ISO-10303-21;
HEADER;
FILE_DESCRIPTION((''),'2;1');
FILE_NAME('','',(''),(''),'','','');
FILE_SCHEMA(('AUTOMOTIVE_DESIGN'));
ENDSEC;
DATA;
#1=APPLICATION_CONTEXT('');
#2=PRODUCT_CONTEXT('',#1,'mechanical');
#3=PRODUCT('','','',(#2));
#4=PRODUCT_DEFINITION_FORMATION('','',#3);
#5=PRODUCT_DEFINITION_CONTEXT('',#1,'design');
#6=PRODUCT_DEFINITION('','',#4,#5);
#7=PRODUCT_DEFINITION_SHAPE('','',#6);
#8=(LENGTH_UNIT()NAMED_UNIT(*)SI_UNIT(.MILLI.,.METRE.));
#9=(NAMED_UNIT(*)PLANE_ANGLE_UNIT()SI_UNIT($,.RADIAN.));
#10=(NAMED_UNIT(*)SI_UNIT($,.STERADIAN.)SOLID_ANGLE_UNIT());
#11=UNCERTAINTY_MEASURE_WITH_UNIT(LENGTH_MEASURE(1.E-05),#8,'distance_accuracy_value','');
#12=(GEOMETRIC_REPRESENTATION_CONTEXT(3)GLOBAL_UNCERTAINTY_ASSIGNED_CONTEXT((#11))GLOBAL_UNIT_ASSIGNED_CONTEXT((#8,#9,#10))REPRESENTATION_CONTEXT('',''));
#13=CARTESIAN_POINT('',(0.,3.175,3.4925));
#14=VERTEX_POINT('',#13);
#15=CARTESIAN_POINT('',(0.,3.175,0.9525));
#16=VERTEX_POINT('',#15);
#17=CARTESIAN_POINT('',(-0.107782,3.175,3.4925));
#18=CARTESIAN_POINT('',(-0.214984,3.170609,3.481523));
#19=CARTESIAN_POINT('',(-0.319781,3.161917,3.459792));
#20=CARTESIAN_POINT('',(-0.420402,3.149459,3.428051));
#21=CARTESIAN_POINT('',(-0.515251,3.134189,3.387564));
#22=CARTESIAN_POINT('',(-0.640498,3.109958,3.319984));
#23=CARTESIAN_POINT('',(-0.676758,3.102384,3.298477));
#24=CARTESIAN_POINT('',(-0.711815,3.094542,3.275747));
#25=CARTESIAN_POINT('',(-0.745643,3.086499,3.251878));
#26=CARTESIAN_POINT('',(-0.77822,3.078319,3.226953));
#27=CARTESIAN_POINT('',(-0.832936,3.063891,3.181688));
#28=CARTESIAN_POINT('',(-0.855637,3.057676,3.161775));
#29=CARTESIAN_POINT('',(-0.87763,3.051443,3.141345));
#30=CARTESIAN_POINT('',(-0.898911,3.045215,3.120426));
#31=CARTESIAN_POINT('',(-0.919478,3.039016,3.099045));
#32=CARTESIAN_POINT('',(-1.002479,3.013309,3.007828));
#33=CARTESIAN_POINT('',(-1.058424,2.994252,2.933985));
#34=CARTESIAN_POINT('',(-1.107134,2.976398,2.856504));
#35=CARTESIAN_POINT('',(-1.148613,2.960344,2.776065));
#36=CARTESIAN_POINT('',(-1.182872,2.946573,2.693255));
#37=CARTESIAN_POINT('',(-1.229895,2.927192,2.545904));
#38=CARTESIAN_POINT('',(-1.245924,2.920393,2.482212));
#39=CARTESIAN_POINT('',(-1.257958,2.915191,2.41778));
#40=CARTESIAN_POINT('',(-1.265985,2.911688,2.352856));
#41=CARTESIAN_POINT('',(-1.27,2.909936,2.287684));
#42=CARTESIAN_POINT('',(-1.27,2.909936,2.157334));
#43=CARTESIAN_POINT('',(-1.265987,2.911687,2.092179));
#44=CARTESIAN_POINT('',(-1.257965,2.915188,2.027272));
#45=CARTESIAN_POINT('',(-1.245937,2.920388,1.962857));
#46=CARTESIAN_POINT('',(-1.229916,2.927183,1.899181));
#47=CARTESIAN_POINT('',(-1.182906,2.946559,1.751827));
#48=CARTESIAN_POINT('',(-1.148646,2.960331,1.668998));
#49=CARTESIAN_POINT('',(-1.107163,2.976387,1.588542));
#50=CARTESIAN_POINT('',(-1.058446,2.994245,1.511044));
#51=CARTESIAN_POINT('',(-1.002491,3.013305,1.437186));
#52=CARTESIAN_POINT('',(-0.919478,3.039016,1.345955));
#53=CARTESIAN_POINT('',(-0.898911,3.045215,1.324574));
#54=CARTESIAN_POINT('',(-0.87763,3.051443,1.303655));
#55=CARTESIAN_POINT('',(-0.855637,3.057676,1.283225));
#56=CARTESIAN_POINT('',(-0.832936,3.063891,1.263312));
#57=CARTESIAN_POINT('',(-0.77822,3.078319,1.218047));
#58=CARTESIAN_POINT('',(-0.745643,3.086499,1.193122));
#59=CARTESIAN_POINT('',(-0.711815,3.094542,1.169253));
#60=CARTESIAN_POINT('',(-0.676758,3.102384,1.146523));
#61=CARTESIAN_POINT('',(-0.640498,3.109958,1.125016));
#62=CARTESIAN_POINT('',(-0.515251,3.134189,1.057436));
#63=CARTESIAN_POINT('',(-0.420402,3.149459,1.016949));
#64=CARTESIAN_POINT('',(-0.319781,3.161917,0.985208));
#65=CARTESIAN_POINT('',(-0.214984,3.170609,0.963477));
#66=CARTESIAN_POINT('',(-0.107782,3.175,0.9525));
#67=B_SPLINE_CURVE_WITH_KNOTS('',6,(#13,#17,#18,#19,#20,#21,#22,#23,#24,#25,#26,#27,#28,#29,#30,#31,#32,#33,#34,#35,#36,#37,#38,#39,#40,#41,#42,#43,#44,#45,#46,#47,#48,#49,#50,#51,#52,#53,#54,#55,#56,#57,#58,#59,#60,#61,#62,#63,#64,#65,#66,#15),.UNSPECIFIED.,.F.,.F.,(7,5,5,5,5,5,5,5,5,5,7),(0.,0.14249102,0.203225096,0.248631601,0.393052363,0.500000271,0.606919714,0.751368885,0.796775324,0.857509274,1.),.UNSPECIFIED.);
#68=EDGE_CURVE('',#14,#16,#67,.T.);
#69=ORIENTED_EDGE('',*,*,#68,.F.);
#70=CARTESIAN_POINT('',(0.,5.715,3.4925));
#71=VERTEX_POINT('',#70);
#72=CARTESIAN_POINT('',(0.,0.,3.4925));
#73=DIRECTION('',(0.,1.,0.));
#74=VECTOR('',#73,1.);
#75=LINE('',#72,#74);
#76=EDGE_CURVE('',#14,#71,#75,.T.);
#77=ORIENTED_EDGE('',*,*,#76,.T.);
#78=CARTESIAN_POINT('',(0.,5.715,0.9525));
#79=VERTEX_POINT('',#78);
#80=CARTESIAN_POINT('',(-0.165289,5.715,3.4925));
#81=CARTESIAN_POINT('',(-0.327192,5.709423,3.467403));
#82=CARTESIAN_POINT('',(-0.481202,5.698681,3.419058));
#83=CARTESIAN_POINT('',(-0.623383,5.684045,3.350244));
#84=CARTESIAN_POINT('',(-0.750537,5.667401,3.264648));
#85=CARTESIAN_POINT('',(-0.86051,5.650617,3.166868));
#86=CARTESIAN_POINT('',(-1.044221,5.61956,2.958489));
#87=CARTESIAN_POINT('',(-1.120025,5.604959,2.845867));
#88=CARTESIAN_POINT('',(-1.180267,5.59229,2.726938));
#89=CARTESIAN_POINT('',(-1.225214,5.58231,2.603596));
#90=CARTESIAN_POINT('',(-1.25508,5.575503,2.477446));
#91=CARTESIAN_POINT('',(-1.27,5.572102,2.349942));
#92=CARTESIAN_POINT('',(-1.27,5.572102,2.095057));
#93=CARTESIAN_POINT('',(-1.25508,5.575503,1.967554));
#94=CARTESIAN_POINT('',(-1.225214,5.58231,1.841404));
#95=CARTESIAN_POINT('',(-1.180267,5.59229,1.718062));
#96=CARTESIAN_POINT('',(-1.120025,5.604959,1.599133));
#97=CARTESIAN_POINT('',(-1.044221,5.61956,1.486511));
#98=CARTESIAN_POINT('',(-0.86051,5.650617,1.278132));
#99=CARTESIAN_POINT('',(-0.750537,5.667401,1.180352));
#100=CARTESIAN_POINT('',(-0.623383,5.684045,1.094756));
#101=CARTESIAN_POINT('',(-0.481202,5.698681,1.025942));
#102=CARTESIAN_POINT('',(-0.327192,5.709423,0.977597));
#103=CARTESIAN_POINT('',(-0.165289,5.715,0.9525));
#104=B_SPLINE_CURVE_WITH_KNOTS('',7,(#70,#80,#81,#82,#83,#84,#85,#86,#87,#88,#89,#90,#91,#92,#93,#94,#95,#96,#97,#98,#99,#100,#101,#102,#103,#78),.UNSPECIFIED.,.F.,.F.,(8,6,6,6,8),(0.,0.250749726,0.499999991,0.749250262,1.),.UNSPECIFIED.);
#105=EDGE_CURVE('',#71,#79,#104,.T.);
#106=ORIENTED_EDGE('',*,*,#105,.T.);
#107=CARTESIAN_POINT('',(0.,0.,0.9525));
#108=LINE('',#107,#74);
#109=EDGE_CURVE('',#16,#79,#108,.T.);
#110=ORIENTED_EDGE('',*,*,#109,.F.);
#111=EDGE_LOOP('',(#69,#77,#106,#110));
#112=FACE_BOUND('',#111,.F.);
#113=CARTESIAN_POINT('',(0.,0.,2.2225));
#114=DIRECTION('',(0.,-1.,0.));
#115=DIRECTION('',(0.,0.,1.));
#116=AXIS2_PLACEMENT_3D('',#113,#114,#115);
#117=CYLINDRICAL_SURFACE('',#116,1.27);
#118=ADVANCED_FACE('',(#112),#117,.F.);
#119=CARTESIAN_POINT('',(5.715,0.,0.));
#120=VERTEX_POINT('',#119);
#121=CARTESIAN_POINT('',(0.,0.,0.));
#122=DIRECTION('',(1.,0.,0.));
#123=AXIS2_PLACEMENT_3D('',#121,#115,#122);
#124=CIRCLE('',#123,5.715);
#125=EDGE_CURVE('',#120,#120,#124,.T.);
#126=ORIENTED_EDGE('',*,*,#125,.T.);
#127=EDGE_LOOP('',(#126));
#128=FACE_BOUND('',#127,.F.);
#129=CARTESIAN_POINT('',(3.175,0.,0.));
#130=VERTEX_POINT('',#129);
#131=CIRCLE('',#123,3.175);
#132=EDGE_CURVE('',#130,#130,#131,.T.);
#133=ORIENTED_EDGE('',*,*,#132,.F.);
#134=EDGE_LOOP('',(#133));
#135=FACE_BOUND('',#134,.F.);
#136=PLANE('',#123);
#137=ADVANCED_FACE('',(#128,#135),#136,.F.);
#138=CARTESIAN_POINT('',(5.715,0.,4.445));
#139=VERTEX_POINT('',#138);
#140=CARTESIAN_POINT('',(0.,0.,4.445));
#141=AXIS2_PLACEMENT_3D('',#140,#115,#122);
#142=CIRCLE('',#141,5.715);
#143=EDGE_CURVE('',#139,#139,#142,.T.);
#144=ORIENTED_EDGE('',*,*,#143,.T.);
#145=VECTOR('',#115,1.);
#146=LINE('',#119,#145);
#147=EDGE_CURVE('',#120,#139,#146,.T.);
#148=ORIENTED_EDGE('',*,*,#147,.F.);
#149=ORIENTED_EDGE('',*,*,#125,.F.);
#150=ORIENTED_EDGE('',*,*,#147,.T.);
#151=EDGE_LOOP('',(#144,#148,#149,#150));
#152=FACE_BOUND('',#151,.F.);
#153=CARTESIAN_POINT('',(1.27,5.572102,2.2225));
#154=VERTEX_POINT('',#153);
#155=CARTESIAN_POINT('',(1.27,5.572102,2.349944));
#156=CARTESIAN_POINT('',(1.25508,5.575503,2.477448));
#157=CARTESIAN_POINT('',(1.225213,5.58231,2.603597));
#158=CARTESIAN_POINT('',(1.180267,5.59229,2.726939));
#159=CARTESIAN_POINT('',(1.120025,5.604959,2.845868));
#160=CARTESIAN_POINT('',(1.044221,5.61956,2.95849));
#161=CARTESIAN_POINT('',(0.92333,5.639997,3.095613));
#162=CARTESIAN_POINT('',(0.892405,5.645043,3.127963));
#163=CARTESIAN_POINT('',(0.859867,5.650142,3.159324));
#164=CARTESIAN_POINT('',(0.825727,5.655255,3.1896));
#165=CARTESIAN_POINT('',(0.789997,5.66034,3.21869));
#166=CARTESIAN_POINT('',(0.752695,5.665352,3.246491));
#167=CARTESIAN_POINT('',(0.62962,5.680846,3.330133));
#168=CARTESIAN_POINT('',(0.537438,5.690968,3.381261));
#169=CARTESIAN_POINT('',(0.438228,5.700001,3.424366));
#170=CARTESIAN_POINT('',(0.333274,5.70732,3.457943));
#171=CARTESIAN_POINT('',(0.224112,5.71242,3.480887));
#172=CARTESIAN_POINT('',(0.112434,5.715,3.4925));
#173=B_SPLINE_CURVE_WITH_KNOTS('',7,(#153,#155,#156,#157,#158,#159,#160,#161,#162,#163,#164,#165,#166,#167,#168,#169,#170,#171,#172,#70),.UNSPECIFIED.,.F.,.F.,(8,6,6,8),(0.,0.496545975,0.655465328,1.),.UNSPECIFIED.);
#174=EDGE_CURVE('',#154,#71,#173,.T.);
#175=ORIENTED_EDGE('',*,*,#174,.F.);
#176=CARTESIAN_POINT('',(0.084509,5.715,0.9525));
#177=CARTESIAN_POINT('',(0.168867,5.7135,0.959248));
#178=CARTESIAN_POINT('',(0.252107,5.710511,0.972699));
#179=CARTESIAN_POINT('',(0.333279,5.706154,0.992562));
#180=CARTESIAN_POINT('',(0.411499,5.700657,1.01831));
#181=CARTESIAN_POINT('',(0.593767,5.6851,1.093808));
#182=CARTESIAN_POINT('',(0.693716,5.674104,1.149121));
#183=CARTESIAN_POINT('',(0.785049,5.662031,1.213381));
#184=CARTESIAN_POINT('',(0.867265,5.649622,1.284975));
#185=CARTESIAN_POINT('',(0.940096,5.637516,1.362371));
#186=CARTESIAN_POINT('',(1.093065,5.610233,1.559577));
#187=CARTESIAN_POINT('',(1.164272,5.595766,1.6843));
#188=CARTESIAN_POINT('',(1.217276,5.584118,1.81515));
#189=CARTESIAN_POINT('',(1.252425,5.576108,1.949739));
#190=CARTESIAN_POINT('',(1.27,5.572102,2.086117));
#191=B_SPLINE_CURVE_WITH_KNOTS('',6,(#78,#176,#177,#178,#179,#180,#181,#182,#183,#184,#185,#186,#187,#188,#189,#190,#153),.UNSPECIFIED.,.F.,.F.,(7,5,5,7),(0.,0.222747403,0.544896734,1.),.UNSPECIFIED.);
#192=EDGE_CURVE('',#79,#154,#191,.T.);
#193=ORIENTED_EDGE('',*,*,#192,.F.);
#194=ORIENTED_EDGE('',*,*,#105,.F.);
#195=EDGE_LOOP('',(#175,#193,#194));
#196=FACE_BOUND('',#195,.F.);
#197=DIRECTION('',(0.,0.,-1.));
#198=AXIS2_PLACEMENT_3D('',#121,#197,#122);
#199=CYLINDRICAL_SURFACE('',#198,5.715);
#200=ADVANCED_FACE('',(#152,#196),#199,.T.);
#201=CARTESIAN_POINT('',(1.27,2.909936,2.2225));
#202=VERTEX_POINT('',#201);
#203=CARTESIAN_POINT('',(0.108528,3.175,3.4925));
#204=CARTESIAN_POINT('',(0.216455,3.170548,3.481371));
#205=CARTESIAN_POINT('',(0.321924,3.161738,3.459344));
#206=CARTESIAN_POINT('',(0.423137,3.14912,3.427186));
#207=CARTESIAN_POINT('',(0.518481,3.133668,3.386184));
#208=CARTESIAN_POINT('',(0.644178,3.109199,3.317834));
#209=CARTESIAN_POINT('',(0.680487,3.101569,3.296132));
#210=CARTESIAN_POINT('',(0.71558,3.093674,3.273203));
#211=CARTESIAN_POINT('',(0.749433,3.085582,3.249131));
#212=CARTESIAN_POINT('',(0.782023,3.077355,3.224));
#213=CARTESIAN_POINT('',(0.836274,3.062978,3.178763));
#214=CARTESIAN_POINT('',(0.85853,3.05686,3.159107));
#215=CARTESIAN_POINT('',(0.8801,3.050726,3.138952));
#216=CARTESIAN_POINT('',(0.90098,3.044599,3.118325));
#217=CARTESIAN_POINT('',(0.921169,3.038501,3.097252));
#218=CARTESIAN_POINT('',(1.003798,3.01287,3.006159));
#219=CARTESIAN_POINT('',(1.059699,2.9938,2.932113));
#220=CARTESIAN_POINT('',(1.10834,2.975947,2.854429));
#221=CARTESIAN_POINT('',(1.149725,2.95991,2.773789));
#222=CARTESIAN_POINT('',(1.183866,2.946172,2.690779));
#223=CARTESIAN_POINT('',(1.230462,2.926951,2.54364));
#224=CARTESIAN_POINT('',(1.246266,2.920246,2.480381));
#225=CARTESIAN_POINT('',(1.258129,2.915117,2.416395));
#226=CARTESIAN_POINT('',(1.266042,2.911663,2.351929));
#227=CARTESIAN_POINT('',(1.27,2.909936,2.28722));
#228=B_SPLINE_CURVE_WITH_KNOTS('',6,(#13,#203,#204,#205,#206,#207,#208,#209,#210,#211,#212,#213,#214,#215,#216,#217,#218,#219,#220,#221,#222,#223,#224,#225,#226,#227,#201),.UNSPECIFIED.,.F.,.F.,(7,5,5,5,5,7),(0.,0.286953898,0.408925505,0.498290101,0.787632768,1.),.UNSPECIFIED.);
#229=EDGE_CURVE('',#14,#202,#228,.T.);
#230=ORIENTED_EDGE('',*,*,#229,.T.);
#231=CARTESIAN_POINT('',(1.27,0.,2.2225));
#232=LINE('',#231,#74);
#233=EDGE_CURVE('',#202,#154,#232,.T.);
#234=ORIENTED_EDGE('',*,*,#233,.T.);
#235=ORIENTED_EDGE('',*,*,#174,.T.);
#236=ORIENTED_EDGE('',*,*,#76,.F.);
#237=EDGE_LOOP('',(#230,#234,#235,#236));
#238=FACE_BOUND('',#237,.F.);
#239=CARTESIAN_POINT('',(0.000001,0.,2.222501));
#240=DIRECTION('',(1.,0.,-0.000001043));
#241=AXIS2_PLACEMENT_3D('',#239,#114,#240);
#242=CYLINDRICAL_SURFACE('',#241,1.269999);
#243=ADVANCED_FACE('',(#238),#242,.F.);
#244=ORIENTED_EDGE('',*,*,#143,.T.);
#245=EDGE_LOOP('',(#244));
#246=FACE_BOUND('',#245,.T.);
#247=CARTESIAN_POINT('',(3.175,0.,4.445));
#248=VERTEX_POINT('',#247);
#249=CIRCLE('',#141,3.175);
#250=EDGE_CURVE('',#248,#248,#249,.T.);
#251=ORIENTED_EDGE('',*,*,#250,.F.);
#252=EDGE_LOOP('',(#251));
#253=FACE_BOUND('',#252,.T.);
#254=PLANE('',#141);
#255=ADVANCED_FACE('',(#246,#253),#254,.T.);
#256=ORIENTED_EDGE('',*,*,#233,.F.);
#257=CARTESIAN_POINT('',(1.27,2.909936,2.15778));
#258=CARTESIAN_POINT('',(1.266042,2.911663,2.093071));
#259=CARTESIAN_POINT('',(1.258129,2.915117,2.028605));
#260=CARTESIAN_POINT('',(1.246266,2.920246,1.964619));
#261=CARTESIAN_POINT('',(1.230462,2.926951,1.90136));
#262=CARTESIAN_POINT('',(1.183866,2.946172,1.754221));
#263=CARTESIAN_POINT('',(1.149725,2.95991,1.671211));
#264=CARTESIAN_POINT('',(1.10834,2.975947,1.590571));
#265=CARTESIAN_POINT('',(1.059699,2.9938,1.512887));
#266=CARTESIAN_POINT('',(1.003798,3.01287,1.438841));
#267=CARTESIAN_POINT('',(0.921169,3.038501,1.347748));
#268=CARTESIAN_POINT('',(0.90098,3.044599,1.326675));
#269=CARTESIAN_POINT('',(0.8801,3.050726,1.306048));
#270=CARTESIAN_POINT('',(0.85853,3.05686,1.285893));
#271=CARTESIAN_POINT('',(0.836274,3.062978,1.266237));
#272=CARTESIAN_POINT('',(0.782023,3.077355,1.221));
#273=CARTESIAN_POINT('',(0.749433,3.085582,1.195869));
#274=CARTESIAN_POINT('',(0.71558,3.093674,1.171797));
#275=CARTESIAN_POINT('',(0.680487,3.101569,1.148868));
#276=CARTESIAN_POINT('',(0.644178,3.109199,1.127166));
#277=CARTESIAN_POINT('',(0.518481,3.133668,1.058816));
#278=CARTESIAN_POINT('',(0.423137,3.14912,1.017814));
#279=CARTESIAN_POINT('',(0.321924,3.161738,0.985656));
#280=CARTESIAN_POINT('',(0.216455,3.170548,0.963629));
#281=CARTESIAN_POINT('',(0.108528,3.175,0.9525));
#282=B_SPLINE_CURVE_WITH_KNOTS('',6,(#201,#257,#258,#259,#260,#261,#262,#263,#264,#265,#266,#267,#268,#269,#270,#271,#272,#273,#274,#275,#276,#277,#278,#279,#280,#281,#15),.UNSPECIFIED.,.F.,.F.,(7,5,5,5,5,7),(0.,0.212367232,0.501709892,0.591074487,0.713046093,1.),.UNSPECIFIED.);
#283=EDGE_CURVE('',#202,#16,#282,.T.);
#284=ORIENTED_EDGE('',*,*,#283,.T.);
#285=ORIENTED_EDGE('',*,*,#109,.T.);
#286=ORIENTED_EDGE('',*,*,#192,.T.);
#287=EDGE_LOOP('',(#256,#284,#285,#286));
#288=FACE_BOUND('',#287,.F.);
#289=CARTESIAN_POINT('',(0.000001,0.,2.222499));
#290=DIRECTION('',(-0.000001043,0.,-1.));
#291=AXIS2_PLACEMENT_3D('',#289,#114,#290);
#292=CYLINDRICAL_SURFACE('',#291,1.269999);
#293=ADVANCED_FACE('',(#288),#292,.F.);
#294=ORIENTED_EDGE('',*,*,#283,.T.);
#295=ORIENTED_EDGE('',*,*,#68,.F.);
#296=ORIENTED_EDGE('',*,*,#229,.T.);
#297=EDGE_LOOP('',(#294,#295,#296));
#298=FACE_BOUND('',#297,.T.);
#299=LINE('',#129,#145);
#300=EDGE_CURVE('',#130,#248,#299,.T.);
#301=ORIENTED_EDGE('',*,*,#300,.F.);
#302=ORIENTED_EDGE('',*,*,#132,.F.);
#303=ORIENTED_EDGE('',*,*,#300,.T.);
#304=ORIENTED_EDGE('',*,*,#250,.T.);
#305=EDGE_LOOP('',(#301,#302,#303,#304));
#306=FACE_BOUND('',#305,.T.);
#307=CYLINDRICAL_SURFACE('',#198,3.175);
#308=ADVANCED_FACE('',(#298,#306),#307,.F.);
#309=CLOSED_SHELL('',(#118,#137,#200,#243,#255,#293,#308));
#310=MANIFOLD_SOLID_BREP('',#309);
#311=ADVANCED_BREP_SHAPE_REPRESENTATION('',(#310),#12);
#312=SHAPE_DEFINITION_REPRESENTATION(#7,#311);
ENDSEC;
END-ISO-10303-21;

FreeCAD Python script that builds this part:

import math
import FreeCAD as App
import Part
import Sketcher
Q = App.Units.Quantity

doc = App.newDocument("Part")
body = doc.addObject("PartDesign::Body", "Body")

# Sketch on XY plane
sketch1 = body.newObject("Sketcher::SketchObject", "Sketch")
sketch1.AttachmentSupport = (doc.getObject("XY_Plane"), [""])
sketch1.MapMode = "FlatFace"
sketch1.addGeometry(Part.Circle(App.Vector(0, 0, 0), App.Vector(0, 0, 1), 5.715), False)
sketch1.addGeometry(Part.Circle(App.Vector(0, 0, 0), App.Vector(0, 0, 1), 3.175), False)
sketch1.addConstraint(Sketcher.Constraint("Coincident", 0, 3, -1, 1))
sketch1.addConstraint(Sketcher.Constraint("Coincident", 1, 3, -1, 1))
sketch1.addConstraint(Sketcher.Constraint("Diameter", 0, Q("0.45 in")))
sketch1.addConstraint(Sketcher.Constraint("Diameter", 1, Q("0.25 in")))
pad1 = body.newObject("PartDesign::Pad", "Pad")
pad1.Profile = sketch1
pad1.Length = Q("0.175 in")

# Sketch on XZ plane
sketch2 = body.newObject("Sketcher::SketchObject", "Sketch001")
sketch2.AttachmentSupport = (doc.getObject("XZ_Plane"), [""])
sketch2.MapMode = "FlatFace"
sketch2.addGeometry(Part.ArcOfCircle(Part.Circle(App.Vector(0.000001, 2.222501, 0), App.Vector(0, 0, 1), 1.269999), math.radians(-0.00006), math.radians(90.00006)), False)
sketch2.addGeometry(Part.ArcOfCircle(Part.Circle(App.Vector(0, 2.2225, 0), App.Vector(0, 0, 1), 1.27), math.radians(90), math.radians(270)), False)
sketch2.addGeometry(Part.ArcOfCircle(Part.Circle(App.Vector(0.000001, 2.222499, 0), App.Vector(0, 0, 1), 1.269999), math.radians(-90.00006), math.radians(0.00006)), False)
sketch2.addConstraint(Sketcher.Constraint("Tangent", 0, 2, 1, 1))
sketch2.addConstraint(Sketcher.Constraint("Tangent", 1, 2, 2, 1))
sketch2.addConstraint(Sketcher.Constraint("Coincident", 2, 2, 0, 1))
sketch2.addConstraint(Sketcher.Constraint("Equal", 0, 1))
sketch2.addConstraint(Sketcher.Constraint("PointOnObject", 0, 3, -2))
sketch2.addConstraint(Sketcher.Constraint("PointOnObject", 0, 2, -2))
sketch2.addConstraint(Sketcher.Constraint("PointOnObject", 1, 2, -2))
sketch2.addConstraint(Sketcher.Constraint("Horizontal", 1, 3, 2, 2))
sketch2.addConstraint(Sketcher.Constraint("Radius", 0, Q("0.0499999 in")))
sketch2.addConstraint(Sketcher.Constraint("DistanceY", -1, 1, 0, 3, Q("0.0875001 in")))
pocket1 = body.newObject("PartDesign::Pocket", "Pocket")
pocket1.Profile = sketch2
pocket1.Length = Q("1 in")

doc.recompute()
